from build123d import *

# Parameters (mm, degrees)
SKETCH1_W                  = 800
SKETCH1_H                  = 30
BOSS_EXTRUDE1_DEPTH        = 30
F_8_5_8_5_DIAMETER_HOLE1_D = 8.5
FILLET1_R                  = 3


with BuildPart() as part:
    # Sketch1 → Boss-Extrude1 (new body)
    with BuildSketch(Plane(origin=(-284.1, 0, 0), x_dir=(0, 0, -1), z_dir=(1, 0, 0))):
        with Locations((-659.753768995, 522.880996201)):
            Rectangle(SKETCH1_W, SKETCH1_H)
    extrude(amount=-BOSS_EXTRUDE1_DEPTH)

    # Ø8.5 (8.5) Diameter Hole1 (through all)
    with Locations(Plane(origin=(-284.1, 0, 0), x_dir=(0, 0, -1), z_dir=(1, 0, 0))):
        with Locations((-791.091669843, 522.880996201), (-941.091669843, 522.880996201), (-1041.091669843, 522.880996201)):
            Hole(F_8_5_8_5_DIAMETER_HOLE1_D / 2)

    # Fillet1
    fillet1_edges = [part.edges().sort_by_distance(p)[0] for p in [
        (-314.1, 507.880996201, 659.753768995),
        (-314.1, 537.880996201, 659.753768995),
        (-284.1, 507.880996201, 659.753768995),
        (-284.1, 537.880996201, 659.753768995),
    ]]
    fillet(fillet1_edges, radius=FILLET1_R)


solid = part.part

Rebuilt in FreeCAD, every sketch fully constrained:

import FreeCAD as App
import Part
import Sketcher
from FreeCAD import Vector
Q = App.Units.Quantity


def edges_at(feature, points):
    """Names of the edges that pass closest to the given points."""
    edges = feature.Shape.Edges
    near = lambda p: min(range(len(edges)), key=lambda i: edges[i].distToShape(Part.Vertex(*p))[0])
    return sorted({f"Edge{near(p) + 1}" for p in points})


def add_polygon(sketch, points):
    """Adds a closed chain of lines whose ends are joined by coincident constraints."""
    first, n = sketch.GeometryCount, len(points)
    for a, b in zip(points, points[1:] + points[:1]):
        sketch.addGeometry(Part.LineSegment(App.Vector(*a, 0), App.Vector(*b, 0)), False)
    for i in range(n):
        sketch.addConstraint(Sketcher.Constraint("Coincident", first + i, 2, first + (i + 1) % n, 1))

doc = App.newDocument("Part")
body = doc.addObject("PartDesign::Body", "Body")

# Sketch on YZ plane
sketch1 = body.newObject("Sketcher::SketchObject", "Sketch")
sketch1.AttachmentSupport = (doc.getObject("YZ_Plane"), [""])
sketch1.MapMode = "FlatFace"
sketch1.AttachmentOffset = App.Placement(Vector(0, 0, -284.1), App.Rotation())
add_polygon(sketch1, [(538, 1060), (508, 1060), (508, 260), (538, 260)])  # lines 0-3
sketch1.addConstraint([
    Sketcher.Constraint("Horizontal", 0),
    Sketcher.Constraint("Vertical", 1),
    Sketcher.Constraint("Horizontal", 2),
    Sketcher.Constraint("Vertical", 3),
    Sketcher.Constraint("DistanceX", 0, 2, 0, 1, Q("30 mm")),
    Sketcher.Constraint("DistanceY", 1, 2, 1, 1, Q("800 mm")),
    Sketcher.Constraint("DistanceY", -1, 1, 0, 2, Q("1059.753769 mm")),
    Sketcher.Constraint("DistanceX", -1, 1, 0, 2, Q("507.880996 mm")),
])
pad1 = body.newObject("PartDesign::Pad", "Pad")
pad1.Profile = sketch1
pad1.Length = 30
pad1.Reversed = True

# Sketch on YZ plane
sketch2 = body.newObject("Sketcher::SketchObject", "Sketch001")
sketch2.AttachmentSupport = (doc.getObject("YZ_Plane"), [""])
sketch2.MapMode = "FlatFace"
sketch2.AttachmentOffset = App.Placement(Vector(0, 0, -284.1), App.Rotation())
sketch2.addGeometry([
    Part.Circle(Vector(522.9, 791.1, 0), Vector(0, 0, 1), 4.2),
    Part.Circle(Vector(522.9, 941.1, 0), Vector(0, 0, 1), 4.2),
    Part.Circle(Vector(522.9, 1041.1, 0), Vector(0, 0, 1), 4.2),
], False)
sketch2.addConstraint([
    Sketcher.Constraint("Equal", 0, 1),
    Sketcher.Constraint("Equal", 1, 2),
    Sketcher.Constraint("Vertical", 0, 3, 1, 3),
    Sketcher.Constraint("Vertical", 1, 3, 2, 3),
    Sketcher.Constraint("Diameter", 0, Q("8.5 mm")),
    Sketcher.Constraint("DistanceY", 0, 3, 1, 3, Q("150 mm")),
    Sketcher.Constraint("DistanceY", 1, 3, 2, 3, Q("100 mm")),
    Sketcher.Constraint("DistanceY", -1, 1, 0, 3, Q("791.09167 mm")),
    Sketcher.Constraint("DistanceX", -1, 1, 0, 3, Q("522.880996 mm")),
])
doc.recompute()
hole = body.newObject("PartDesign::Hole", "Hole")
hole.Profile = sketch2
hole.ThreadType = "None"
hole.Diameter = 8.5
hole.DepthType = "ThroughAll"
doc.recompute()

fillet = body.newObject("PartDesign::Fillet", "Fillet")
fillet.Base = (hole, edges_at(hole, [
    (-314.1, 507.881, 659.754),
    (-314.1, 537.881, 659.754),
    (-284.1, 507.881, 659.754),
    (-284.1, 537.881, 659.754),
]))
fillet.Radius = 3

doc.recompute()
